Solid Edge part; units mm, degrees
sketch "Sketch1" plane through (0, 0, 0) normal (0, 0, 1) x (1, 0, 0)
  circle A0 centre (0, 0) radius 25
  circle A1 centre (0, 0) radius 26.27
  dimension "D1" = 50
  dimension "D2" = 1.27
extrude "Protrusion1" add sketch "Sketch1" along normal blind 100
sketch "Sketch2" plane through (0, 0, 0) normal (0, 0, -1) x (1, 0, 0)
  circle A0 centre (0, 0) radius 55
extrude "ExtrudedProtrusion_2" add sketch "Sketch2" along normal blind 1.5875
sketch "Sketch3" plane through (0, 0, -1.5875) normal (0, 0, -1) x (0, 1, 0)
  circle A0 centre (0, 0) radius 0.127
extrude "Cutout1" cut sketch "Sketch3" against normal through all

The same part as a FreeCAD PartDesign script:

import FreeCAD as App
import Part
import Sketcher
Q = App.Units.Quantity

doc = App.newDocument("Part")
body = doc.addObject("PartDesign::Body", "Body")

sketch1 = body.newObject("Sketcher::SketchObject", "Sketch")
sketch1.AttachmentSupport = (doc.getObject("XY_Plane"), [""])
sketch1.MapMode = "FlatFace"
sketch1.addGeometry(Part.Circle(App.Vector(0, 0, 0), App.Vector(0, 0, 1), 26), False)
sketch1.addGeometry(Part.Circle(App.Vector(0, 0, 0), App.Vector(0, 0, 1), 25), False)
sketch1.addConstraint(Sketcher.Constraint("Coincident", 0, 3, -1, 1))
sketch1.addConstraint(Sketcher.Constraint("Coincident", 1, 3, -1, 1))
sketch1.addConstraint(Sketcher.Constraint("Diameter", 0, Q("2.0685 in")))
sketch1.addConstraint(Sketcher.Constraint("Diameter", 1, Q("1.9685 in")))
pad1 = body.newObject("PartDesign::Pad", "Pad")
pad1.Profile = sketch1
pad1.Length = Q("3.9370079 in")

sketch2 = body.newObject("Sketcher::SketchObject", "Sketch001")
sketch2.AttachmentSupport = (doc.getObject("XY_Plane"), [""])
sketch2.MapMode = "FlatFace"
sketch2.addGeometry(Part.Circle(App.Vector(0, 0, 0), App.Vector(0, 0, 1), 55), False)
sketch2.addConstraint(Sketcher.Constraint("Coincident", 0, 3, -1, 1))
sketch2.addConstraint(Sketcher.Constraint("Diameter", 0, Q("4.3307 in")))
pad2 = body.newObject("PartDesign::Pad", "Pad001")
pad2.Profile = sketch2
pad2.Length = Q("0.0625 in")
pad2.Reversed = True

sketch3 = body.newObject("Sketcher::SketchObject", "Sketch002")
sketch3.AttachmentSupport = (doc.getObject("XY_Plane"), [""])
sketch3.MapMode = "FlatFace"
sketch3.AttachmentOffset = App.Placement(App.Vector(0, 0, -0.0625 * 25.4), App.Rotation())
sketch3.addGeometry(Part.Circle(App.Vector(0, 0, 0), App.Vector(0, 0, 1), 0.13), False)
sketch3.addConstraint(Sketcher.Constraint("Coincident", 0, 3, -1, 1))
sketch3.addConstraint(Sketcher.Constraint("Diameter", 0, Q("0.01 in")))
pocket1 = body.newObject("PartDesign::Pocket", "Pocket")
pocket1.Profile = sketch3
pocket1.Type = "ThroughAll"
pocket1.Reversed = True

doc.recompute()
